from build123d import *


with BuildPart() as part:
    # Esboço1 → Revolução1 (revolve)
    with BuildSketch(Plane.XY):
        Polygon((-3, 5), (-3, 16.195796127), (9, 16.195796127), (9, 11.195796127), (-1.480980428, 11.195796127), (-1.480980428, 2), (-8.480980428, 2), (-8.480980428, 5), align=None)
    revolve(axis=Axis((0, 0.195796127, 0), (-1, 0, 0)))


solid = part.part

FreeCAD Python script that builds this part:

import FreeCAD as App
import Part
import Sketcher
from FreeCAD import Vector


def add_polygon(sketch, points):
    """Adds a closed chain of lines whose ends are joined by coincident constraints."""
    first, n = sketch.GeometryCount, len(points)
    for a, b in zip(points, points[1:] + points[:1]):
        sketch.addGeometry(Part.LineSegment(App.Vector(*a, 0), App.Vector(*b, 0)), False)
    for i in range(n):
        sketch.addConstraint(Sketcher.Constraint("Coincident", first + i, 2, first + (i + 1) % n, 1))

doc = App.newDocument("Part")
body = doc.addObject("PartDesign::Body", "Body")

# Sketch on XY plane
sketch1 = body.newObject("Sketcher::SketchObject", "Sketch")
sketch1.AttachmentSupport = (doc.getObject("XY_Plane"), [""])
sketch1.MapMode = "FlatFace"
add_polygon(sketch1, [(-3, 16.2), (-3, 5), (-8.5, 5), (-8.5, 2), (-1.5, 2), (-1.5, 11.2), (9, 11.2), (9, 16.2)])  # lines 0-7
sketch1.addGeometry(Part.LineSegment(Vector(9, 0.2, 0), Vector(-8.5, 0.2, 0)), True)  # axis
sketch1.addConstraint(Sketcher.Constraint("Vertical", 0))
sketch1.addConstraint(Sketcher.Constraint("Horizontal", 1))
sketch1.addConstraint(Sketcher.Constraint("Vertical", 2))
sketch1.addConstraint(Sketcher.Constraint("Horizontal", 3))
sketch1.addConstraint(Sketcher.Constraint("Vertical", 4))
sketch1.addConstraint(Sketcher.Constraint("Horizontal", 5))
sketch1.addConstraint(Sketcher.Constraint("Vertical", 6))
sketch1.addConstraint(Sketcher.Constraint("Horizontal", 7))
sketch1.addConstraint(Sketcher.Constraint("Horizontal", 8))
sketch1.addConstraint(Sketcher.Constraint("Vertical", 6, 2, 8, 1))
sketch1.addConstraint(Sketcher.Constraint("Vertical", 2, 2, 8, 2))
sketch1.addConstraint(Sketcher.Constraint("DistanceX", 3, 1, 3, 2, 7.0))
sketch1.addConstraint(Sketcher.Constraint("DistanceX", 7, 2, 7, 1, 12.0))
sketch1.addConstraint(Sketcher.Constraint("DistanceY", 2, 2, 2, 1, 3.0))
sketch1.addConstraint(Sketcher.Constraint("DistanceY", 6, 1, 6, 2, 5.0))
sketch1.addConstraint(Sketcher.Constraint("DistanceX", 0, 2, -1, 1, 3.0))
sketch1.addConstraint(Sketcher.Constraint("DistanceY", -1, 1, 0, 2, 5.0))
sketch1.addConstraint(Sketcher.Constraint("DistanceY", 8, 1, 5, 2, 11.0))
sketch1.addConstraint(Sketcher.Constraint("DistanceX", 1, 2, 1, 1, 5.48098))
sketch1.addConstraint(Sketcher.Constraint("DistanceY", 0, 2, 0, 1, 11.195796))
revolution = body.newObject("PartDesign::Revolution", "Revolution")
revolution.Profile = sketch1
revolution.ReferenceAxis = (sketch1, ["Axis0"])
revolution.Angle = 360

doc.recompute()
